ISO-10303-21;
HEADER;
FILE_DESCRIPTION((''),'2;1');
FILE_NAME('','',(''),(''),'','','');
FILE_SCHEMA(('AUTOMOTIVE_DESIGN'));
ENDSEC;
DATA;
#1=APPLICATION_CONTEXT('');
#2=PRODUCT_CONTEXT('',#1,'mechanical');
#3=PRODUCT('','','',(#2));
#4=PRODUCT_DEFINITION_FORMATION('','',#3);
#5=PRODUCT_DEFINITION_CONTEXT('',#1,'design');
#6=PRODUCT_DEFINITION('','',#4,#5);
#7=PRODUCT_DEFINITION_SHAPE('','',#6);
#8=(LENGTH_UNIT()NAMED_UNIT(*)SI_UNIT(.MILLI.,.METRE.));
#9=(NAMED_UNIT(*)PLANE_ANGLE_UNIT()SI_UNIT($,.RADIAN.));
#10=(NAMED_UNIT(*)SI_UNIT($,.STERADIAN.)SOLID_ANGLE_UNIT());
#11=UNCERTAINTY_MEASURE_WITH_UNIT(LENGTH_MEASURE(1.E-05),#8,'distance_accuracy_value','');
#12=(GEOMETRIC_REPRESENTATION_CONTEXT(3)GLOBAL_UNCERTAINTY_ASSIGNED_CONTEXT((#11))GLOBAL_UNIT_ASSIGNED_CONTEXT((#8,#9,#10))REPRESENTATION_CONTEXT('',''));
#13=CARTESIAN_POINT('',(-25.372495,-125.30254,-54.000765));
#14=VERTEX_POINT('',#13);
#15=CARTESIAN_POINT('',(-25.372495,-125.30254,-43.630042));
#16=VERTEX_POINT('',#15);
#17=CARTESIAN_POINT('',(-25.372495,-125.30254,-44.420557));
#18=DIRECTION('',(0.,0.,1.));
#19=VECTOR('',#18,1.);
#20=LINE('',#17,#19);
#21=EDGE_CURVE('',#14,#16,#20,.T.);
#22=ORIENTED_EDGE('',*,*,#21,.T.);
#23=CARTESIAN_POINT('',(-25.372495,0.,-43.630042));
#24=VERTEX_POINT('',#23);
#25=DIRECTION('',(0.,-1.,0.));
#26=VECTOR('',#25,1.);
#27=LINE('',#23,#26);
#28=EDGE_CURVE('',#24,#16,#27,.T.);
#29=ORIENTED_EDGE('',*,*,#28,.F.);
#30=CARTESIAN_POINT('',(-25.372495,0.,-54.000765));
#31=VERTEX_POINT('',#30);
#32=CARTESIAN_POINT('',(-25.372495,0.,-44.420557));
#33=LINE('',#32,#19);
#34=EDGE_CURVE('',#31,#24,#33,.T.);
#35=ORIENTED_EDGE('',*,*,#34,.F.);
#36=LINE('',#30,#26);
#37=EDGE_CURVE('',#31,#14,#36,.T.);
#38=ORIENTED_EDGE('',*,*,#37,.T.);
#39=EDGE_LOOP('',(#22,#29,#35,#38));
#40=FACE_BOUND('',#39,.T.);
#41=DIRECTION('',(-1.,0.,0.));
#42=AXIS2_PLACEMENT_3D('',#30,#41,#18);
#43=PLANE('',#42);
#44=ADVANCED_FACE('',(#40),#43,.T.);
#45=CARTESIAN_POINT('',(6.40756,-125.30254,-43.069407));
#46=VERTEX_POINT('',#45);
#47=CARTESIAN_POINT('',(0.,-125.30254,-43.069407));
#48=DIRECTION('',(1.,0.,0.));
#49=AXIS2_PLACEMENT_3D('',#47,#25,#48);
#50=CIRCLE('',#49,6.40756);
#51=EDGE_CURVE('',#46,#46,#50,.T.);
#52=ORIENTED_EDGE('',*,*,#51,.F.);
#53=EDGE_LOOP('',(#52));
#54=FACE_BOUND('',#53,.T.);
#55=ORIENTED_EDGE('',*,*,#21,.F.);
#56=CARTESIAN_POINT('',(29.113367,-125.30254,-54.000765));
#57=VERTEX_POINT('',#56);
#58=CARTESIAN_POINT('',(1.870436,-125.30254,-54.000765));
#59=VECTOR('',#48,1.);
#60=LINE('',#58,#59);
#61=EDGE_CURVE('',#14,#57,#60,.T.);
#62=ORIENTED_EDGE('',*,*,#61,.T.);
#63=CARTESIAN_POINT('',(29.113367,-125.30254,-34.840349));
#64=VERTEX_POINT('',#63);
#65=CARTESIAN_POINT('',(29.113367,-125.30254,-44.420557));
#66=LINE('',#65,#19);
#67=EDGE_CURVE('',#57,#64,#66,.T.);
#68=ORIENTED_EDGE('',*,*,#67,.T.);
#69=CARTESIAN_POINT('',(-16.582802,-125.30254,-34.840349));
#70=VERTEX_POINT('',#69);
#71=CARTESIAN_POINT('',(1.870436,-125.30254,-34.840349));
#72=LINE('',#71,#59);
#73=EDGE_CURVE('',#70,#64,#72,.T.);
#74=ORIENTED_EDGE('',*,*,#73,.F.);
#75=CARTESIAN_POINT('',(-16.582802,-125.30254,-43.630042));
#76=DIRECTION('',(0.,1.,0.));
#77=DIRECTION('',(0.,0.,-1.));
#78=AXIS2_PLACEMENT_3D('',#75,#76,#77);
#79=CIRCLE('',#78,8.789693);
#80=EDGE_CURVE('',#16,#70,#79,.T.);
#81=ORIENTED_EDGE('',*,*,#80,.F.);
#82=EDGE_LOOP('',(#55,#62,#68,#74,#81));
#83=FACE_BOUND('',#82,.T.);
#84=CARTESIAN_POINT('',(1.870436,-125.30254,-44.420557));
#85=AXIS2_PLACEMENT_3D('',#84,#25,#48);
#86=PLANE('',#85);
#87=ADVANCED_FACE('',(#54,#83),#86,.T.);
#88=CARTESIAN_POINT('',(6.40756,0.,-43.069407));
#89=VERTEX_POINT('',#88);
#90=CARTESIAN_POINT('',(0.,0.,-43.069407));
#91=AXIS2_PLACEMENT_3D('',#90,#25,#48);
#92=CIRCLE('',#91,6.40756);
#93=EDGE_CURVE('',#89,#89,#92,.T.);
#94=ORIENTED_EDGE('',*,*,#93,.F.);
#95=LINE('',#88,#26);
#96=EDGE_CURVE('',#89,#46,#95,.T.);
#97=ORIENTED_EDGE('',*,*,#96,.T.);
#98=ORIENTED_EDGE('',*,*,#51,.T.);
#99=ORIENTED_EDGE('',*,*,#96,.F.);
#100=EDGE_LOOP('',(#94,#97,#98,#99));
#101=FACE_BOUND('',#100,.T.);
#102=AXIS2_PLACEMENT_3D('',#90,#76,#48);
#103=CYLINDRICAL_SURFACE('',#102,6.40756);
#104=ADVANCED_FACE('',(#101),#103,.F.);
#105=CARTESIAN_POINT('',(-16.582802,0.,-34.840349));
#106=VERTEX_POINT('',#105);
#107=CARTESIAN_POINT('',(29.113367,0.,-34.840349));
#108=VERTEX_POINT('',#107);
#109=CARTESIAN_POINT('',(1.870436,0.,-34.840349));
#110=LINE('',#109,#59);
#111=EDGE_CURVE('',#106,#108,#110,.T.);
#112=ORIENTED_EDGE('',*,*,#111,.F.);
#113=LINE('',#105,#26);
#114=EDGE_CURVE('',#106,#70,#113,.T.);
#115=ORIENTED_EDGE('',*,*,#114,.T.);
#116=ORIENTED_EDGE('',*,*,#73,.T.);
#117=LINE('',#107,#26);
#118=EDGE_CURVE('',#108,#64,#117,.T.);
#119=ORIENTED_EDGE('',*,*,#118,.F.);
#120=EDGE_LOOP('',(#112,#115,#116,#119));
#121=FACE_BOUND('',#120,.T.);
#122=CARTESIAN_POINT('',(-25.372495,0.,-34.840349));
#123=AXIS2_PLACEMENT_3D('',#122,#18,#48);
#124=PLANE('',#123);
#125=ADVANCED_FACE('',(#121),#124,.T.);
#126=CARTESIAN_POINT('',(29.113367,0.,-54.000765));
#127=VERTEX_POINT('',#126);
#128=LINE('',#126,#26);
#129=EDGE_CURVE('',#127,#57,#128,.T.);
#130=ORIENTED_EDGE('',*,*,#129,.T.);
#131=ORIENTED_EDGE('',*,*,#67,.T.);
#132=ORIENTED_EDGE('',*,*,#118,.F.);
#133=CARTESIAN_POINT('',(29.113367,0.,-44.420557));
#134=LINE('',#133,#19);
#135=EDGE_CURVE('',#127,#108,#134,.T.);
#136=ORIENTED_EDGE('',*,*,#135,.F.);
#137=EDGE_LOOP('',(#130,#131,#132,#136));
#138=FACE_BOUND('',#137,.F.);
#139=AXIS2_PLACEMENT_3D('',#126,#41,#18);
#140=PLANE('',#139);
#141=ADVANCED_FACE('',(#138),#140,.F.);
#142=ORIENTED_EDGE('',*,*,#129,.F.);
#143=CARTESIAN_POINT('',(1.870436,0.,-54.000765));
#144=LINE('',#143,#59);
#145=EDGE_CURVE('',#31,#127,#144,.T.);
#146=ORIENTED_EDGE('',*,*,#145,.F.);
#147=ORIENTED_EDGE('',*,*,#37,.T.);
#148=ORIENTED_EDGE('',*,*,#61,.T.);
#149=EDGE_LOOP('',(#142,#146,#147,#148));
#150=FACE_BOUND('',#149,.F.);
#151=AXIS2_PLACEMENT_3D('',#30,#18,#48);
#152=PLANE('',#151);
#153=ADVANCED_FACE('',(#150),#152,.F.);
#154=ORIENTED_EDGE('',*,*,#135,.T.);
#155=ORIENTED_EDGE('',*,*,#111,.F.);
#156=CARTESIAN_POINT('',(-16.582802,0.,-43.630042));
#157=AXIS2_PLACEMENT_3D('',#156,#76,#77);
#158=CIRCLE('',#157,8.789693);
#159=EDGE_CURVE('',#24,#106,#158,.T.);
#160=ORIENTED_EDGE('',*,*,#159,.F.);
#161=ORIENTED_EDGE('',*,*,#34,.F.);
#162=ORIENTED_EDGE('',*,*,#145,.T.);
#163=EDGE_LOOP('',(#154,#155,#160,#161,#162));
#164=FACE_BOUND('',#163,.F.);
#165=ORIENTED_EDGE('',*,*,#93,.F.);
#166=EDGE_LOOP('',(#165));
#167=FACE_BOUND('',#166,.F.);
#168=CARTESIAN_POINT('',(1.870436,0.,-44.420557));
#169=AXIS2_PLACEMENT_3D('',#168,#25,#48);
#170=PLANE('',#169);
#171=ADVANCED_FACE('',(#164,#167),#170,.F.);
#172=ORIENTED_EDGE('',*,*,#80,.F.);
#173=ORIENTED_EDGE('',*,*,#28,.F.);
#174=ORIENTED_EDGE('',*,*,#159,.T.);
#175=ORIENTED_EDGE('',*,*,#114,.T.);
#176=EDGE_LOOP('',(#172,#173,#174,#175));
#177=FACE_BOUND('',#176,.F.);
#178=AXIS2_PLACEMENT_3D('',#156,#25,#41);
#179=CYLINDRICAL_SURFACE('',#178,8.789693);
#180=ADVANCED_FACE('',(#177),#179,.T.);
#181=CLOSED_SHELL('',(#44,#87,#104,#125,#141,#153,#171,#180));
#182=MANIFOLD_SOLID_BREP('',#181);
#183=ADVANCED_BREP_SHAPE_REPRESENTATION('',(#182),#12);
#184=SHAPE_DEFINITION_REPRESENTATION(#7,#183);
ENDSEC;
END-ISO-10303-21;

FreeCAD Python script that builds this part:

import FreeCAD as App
import Part
import Sketcher

V = App.Vector
Q = App.Units.Quantity


def edges_at(feature, points):
    """Names of the edges that pass closest to the given points."""
    edges = feature.Shape.Edges
    near = lambda p: min(range(len(edges)), key=lambda i: edges[i].distToShape(Part.Vertex(*p))[0])
    return sorted({f"Edge{near(p) + 1}" for p in points})

doc = App.newDocument("Part")
body = doc.addObject("PartDesign::Body", "Body")

# Sketch on XZ plane
sketch1 = body.newObject("Sketcher::SketchObject", "Sketch")
sketch1.AttachmentSupport = (doc.getObject("XZ_Plane"), [""])
sketch1.MapMode = "FlatFace"
sketch1.addGeometry(Part.LineSegment(V(-25, -35, 0), V(-25, -54, 0)), False)
sketch1.addGeometry(Part.LineSegment(V(-25, -54, 0), V(29, -54, 0)), False)
sketch1.addGeometry(Part.LineSegment(V(29, -54, 0), V(29, -35, 0)), False)
sketch1.addGeometry(Part.LineSegment(V(29, -35, 0), V(-25, -35, 0)), False)
sketch1.addGeometry(Part.Circle(V(0, -43, 0), V(0, 0, 1), 6), False)
sketch1.addConstraint(Sketcher.Constraint("Coincident", 0, 2, 1, 1))
sketch1.addConstraint(Sketcher.Constraint("Coincident", 1, 2, 2, 1))
sketch1.addConstraint(Sketcher.Constraint("Coincident", 2, 2, 3, 1))
sketch1.addConstraint(Sketcher.Constraint("Coincident", 3, 2, 0, 1))
sketch1.addConstraint(Sketcher.Constraint("Vertical", 0))
sketch1.addConstraint(Sketcher.Constraint("Horizontal", 1))
sketch1.addConstraint(Sketcher.Constraint("Vertical", 2))
sketch1.addConstraint(Sketcher.Constraint("Horizontal", 3))
sketch1.addConstraint(Sketcher.Constraint("PointOnObject", 4, 3, -2))
sketch1.addConstraint(Sketcher.Constraint("Diameter", 4, Q("12.81512 mm")))
sketch1.addConstraint(Sketcher.Constraint("DistanceX", 1, 1, 1, 2, Q("54.485863 mm")))
sketch1.addConstraint(Sketcher.Constraint("DistanceY", 0, 2, 0, 1, Q("19.160416 mm")))
sketch1.addConstraint(Sketcher.Constraint("DistanceY", 2, 2, -1, 1, Q("34.840349 mm")))
sketch1.addConstraint(Sketcher.Constraint("DistanceY", 0, 2, 4, 3, Q("10.931358 mm")))
sketch1.addConstraint(Sketcher.Constraint("DistanceX", 0, 2, -1, 1, Q("25.372495 mm")))
pad1 = body.newObject("PartDesign::Pad", "Pad")
pad1.Profile = sketch1
pad1.Length = 125.30254
doc.recompute()

fillet = body.newObject("PartDesign::Fillet", "Fillet")
fillet.Base = (pad1, edges_at(pad1, [(-25.372, -62.651, -34.84)]))
fillet.Radius = 8.789693

doc.recompute()
